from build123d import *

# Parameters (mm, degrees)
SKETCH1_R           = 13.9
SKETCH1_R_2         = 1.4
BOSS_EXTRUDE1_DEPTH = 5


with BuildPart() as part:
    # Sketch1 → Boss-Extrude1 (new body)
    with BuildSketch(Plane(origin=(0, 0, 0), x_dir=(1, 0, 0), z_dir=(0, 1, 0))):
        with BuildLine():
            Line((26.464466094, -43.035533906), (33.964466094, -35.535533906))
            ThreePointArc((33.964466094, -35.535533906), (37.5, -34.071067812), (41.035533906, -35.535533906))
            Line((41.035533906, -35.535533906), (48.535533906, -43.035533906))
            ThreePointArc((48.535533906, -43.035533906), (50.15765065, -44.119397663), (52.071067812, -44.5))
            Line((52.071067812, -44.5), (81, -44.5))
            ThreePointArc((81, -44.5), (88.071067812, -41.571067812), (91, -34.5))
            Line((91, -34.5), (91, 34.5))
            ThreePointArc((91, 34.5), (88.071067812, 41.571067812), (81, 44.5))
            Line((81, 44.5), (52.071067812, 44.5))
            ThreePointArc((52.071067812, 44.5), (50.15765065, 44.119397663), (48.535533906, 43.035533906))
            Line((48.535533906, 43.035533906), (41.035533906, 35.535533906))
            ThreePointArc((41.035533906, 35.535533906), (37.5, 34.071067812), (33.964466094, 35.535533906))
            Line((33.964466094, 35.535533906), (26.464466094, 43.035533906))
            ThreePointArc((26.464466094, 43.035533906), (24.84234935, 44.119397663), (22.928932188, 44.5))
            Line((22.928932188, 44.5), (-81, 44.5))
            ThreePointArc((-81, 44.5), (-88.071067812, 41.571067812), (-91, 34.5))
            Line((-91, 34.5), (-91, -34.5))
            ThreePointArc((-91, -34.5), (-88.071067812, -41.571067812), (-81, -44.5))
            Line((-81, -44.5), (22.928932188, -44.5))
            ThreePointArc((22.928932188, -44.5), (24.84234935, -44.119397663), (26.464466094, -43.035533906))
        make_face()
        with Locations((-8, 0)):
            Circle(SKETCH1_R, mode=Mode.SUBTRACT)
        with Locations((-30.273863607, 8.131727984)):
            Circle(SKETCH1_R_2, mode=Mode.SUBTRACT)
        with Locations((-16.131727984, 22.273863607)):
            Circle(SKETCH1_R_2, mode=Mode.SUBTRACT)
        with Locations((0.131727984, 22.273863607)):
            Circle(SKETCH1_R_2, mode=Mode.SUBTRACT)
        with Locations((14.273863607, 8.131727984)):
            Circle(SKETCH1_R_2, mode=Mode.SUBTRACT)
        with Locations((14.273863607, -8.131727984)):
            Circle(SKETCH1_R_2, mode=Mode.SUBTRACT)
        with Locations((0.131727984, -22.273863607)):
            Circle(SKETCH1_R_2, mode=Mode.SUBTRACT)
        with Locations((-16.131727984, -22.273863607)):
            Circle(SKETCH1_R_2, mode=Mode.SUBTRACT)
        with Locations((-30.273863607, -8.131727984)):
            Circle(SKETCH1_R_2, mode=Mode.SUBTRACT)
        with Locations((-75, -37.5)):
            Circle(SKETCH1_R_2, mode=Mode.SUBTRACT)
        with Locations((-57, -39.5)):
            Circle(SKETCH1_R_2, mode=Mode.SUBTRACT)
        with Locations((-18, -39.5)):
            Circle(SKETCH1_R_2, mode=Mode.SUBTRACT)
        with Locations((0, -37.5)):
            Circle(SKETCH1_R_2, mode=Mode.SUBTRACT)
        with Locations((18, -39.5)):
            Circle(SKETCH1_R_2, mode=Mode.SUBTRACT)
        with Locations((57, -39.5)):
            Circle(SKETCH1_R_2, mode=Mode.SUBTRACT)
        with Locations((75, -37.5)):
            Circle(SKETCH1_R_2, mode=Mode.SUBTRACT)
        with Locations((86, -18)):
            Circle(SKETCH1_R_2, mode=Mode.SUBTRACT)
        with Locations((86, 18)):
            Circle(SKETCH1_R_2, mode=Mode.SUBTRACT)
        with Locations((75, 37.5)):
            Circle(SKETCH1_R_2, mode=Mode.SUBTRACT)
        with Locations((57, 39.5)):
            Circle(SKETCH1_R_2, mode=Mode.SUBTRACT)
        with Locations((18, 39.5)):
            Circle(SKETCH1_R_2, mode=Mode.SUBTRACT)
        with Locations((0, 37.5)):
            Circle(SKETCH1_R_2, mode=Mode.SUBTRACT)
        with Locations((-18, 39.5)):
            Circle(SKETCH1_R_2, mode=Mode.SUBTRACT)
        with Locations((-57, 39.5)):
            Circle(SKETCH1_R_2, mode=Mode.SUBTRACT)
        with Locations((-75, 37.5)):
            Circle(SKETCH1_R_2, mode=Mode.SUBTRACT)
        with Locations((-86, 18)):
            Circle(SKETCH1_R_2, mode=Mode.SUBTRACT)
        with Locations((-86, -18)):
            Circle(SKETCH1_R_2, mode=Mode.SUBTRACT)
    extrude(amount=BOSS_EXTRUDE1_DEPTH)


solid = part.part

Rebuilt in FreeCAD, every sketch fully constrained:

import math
import FreeCAD as App
import Part
import Sketcher
Q = App.Units.Quantity

doc = App.newDocument("Part")
body = doc.addObject("PartDesign::Body", "Body")

# Sketch on XZ plane
sketch1 = body.newObject("Sketcher::SketchObject", "Sketch")
sketch1.AttachmentSupport = (doc.getObject("XZ_Plane"), [""])
sketch1.MapMode = "FlatFace"
sketch1.addGeometry([
    Part.LineSegment(App.Vector(26.5, 43, 0), App.Vector(34, 35.5, 0)),  # 0
    Part.ArcOfCircle(Part.Circle(App.Vector(37.5, 39.1, 0), App.Vector(0, 0, 1), 5), math.radians(-135), math.radians(-45)),  # 1
    Part.LineSegment(App.Vector(41, 35.5, 0), App.Vector(48.5, 43, 0)),  # 2
    Part.ArcOfCircle(Part.Circle(App.Vector(52.1, 39.5, 0), App.Vector(0, 0, 1), 5), math.radians(90), math.radians(135)),  # 3
    Part.LineSegment(App.Vector(52.1, 44.5, 0), App.Vector(81, 44.5, 0)),  # 4
    Part.ArcOfCircle(Part.Circle(App.Vector(81, 34.5, 0), App.Vector(0, 0, 1), 10), math.radians(0), math.radians(90)),  # 5
    Part.LineSegment(App.Vector(91, 34.5, 0), App.Vector(91, -34.5, 0)),  # 6
    Part.ArcOfCircle(Part.Circle(App.Vector(81, -34.5, 0), App.Vector(0, 0, 1), 10), math.radians(-90), math.radians(0)),  # 7
    Part.LineSegment(App.Vector(81, -44.5, 0), App.Vector(52.1, -44.5, 0)),  # 8
    Part.ArcOfCircle(Part.Circle(App.Vector(52.1, -39.5, 0), App.Vector(0, 0, 1), 5), math.radians(-135), math.radians(-90)),  # 9
    Part.LineSegment(App.Vector(48.5, -43, 0), App.Vector(41, -35.5, 0)),  # 10
    Part.ArcOfCircle(Part.Circle(App.Vector(37.5, -39.1, 0), App.Vector(0, 0, 1), 5), math.radians(45), math.radians(135)),  # 11
    Part.LineSegment(App.Vector(34, -35.5, 0), App.Vector(26.5, -43, 0)),  # 12
    Part.ArcOfCircle(Part.Circle(App.Vector(22.9, -39.5, 0), App.Vector(0, 0, 1), 5), math.radians(-90), math.radians(-45)),  # 13
    Part.LineSegment(App.Vector(22.9, -44.5, 0), App.Vector(-81, -44.5, 0)),  # 14
    Part.ArcOfCircle(Part.Circle(App.Vector(-81, -34.5, 0), App.Vector(0, 0, 1), 10), math.radians(180), math.radians(270)),  # 15
    Part.LineSegment(App.Vector(-91, -34.5, 0), App.Vector(-91, 34.5, 0)),  # 16
    Part.ArcOfCircle(Part.Circle(App.Vector(-81, 34.5, 0), App.Vector(0, 0, 1), 10), math.radians(90), math.radians(180)),  # 17
    Part.LineSegment(App.Vector(-81, 44.5, 0), App.Vector(22.9, 44.5, 0)),  # 18
    Part.ArcOfCircle(Part.Circle(App.Vector(22.9, 39.5, 0), App.Vector(0, 0, 1), 5), math.radians(45), math.radians(90)),  # 19
    Part.Circle(App.Vector(-75, 37.5, 0), App.Vector(0, 0, 1), 1.4),  # 20
    Part.Circle(App.Vector(-57, 39.5, 0), App.Vector(0, 0, 1), 1.4),  # 21
    Part.Circle(App.Vector(-18, 39.5, 0), App.Vector(0, 0, 1), 1.4),  # 22
    Part.Circle(App.Vector(-16.1, 22.3, 0), App.Vector(0, 0, 1), 1.4),  # 23
    Part.Circle(App.Vector(-86, 18, 0), App.Vector(0, 0, 1), 1.4),  # 24
    Part.Circle(App.Vector(-30.3, 8.1, 0), App.Vector(0, 0, 1), 1.4),  # 25
    Part.Circle(App.Vector(0, 37.5, 0), App.Vector(0, 0, 1), 1.4),  # 26
    Part.Circle(App.Vector(18, 39.5, 0), App.Vector(0, 0, 1), 1.4),  # 27
    Part.Circle(App.Vector(0.1, 22.3, 0), App.Vector(0, 0, 1), 1.4),  # 28
    Part.Circle(App.Vector(57, 39.5, 0), App.Vector(0, 0, 1), 1.4),  # 29
    Part.Circle(App.Vector(75, 37.5, 0), App.Vector(0, 0, 1), 1.4),  # 30
    Part.Circle(App.Vector(14.3, 8.1, 0), App.Vector(0, 0, 1), 1.4),  # 31
    Part.Circle(App.Vector(86, 18, 0), App.Vector(0, 0, 1), 1.4),  # 32
    Part.Circle(App.Vector(-86, -18, 0), App.Vector(0, 0, 1), 1.4),  # 33
    Part.Circle(App.Vector(-30.3, -8.1, 0), App.Vector(0, 0, 1), 1.4),  # 34
    Part.Circle(App.Vector(-8, 0, 0), App.Vector(0, 0, 1), 13.9),  # 35
    Part.Circle(App.Vector(-75, -37.5, 0), App.Vector(0, 0, 1), 1.4),  # 36
    Part.Circle(App.Vector(-57, -39.5, 0), App.Vector(0, 0, 1), 1.4),  # 37
    Part.Circle(App.Vector(-16.1, -22.3, 0), App.Vector(0, 0, 1), 1.4),  # 38
    Part.Circle(App.Vector(-18, -39.5, 0), App.Vector(0, 0, 1), 1.4),  # 39
    Part.Circle(App.Vector(14.3, -8.1, 0), App.Vector(0, 0, 1), 1.4),  # 40
    Part.Circle(App.Vector(86, -18, 0), App.Vector(0, 0, 1), 1.4),  # 41
    Part.Circle(App.Vector(0.1, -22.3, 0), App.Vector(0, 0, 1), 1.4),  # 42
    Part.Circle(App.Vector(0, -37.5, 0), App.Vector(0, 0, 1), 1.4),  # 43
    Part.Circle(App.Vector(18, -39.5, 0), App.Vector(0, 0, 1), 1.4),  # 44
    Part.Circle(App.Vector(57, -39.5, 0), App.Vector(0, 0, 1), 1.4),  # 45
    Part.Circle(App.Vector(75, -37.5, 0), App.Vector(0, 0, 1), 1.4),  # 46
], False)
sketch1.addConstraint([
    Sketcher.Constraint("Tangent", 0, 2, 1, 1),
    Sketcher.Constraint("Tangent", 1, 2, 2, 1),
    Sketcher.Constraint("Tangent", 2, 2, 3, 2),
    Sketcher.Constraint("Tangent", 3, 1, 4, 1),
    Sketcher.Constraint("Tangent", 4, 2, 5, 2),
    Sketcher.Constraint("Tangent", 5, 1, 6, 1),
    Sketcher.Constraint("Tangent", 6, 2, 7, 2),
    Sketcher.Constraint("Tangent", 7, 1, 8, 1),
    Sketcher.Constraint("Tangent", 8, 2, 9, 2),
    Sketcher.Constraint("Tangent", 9, 1, 10, 1),
    Sketcher.Constraint("Tangent", 10, 2, 11, 1),
    Sketcher.Constraint("Tangent", 11, 2, 12, 1),
    Sketcher.Constraint("Tangent", 12, 2, 13, 2),
    Sketcher.Constraint("Tangent", 13, 1, 14, 1),
    Sketcher.Constraint("Tangent", 14, 2, 15, 2),
    Sketcher.Constraint("Tangent", 15, 1, 16, 1),
    Sketcher.Constraint("Tangent", 16, 2, 17, 2),
    Sketcher.Constraint("Tangent", 17, 1, 18, 1),
    Sketcher.Constraint("Tangent", 18, 2, 19, 2),
    Sketcher.Constraint("Tangent", 19, 1, 0, 1),
    Sketcher.Constraint("Horizontal", 4),
    Sketcher.Constraint("Vertical", 6),
    Sketcher.Constraint("Horizontal", 8),
    Sketcher.Constraint("Horizontal", 14),
    Sketcher.Constraint("Vertical", 16),
    Sketcher.Constraint("Horizontal", 18),
    Sketcher.Constraint("Equal", 1, 3),
    Sketcher.Constraint("Equal", 5, 7),
    Sketcher.Constraint("Equal", 3, 9),
    Sketcher.Constraint("Equal", 9, 11),
    Sketcher.Constraint("Equal", 11, 13),
    Sketcher.Constraint("Equal", 7, 15),
    Sketcher.Constraint("Equal", 15, 17),
    Sketcher.Constraint("Equal", 13, 19),
    Sketcher.Constraint("Equal", 20, 21),
    Sketcher.Constraint("Equal", 21, 22),
    Sketcher.Constraint("Equal", 22, 23),
    Sketcher.Constraint("Equal", 23, 24),
    Sketcher.Constraint("Equal", 24, 25),
    Sketcher.Constraint("Equal", 25, 26),
    Sketcher.Constraint("Equal", 26, 27),
    Sketcher.Constraint("Equal", 27, 28),
    Sketcher.Constraint("Equal", 28, 29),
    Sketcher.Constraint("Equal", 29, 30),
    Sketcher.Constraint("Equal", 30, 31),
    Sketcher.Constraint("Equal", 31, 32),
    Sketcher.Constraint("Equal", 32, 33),
    Sketcher.Constraint("Equal", 33, 34),
    Sketcher.Constraint("Equal", 34, 36),
    Sketcher.Constraint("Equal", 36, 37),
    Sketcher.Constraint("Equal", 37, 38),
    Sketcher.Constraint("Equal", 38, 39),
    Sketcher.Constraint("Equal", 39, 40),
    Sketcher.Constraint("Equal", 40, 41),
    Sketcher.Constraint("Equal", 41, 42),
    Sketcher.Constraint("Equal", 42, 43),
    Sketcher.Constraint("Equal", 43, 44),
    Sketcher.Constraint("Equal", 44, 45),
    Sketcher.Constraint("Equal", 45, 46),
    Sketcher.Constraint("Symmetric", 5, 3, 15, 3, -1, 1),
    Sketcher.Constraint("Symmetric", 32, 3, 33, 3, -1, 1),
    Sketcher.Constraint("Symmetric", 30, 3, 36, 3, -1, 1),
    Sketcher.Constraint("Symmetric", 29, 3, 37, 3, -1, 1),
    Sketcher.Constraint("Symmetric", 27, 3, 39, 3, -1, 1),
    Sketcher.Constraint("Symmetric", 24, 3, 41, 3, -1, 1),
    Sketcher.Constraint("Symmetric", 26, 3, 43, 3, -1, 1),
    Sketcher.Constraint("Symmetric", 22, 3, 44, 3, -1, 1),
    Sketcher.Constraint("Symmetric", 21, 3, 45, 3, -1, 1),
    Sketcher.Constraint("Symmetric", 20, 3, 46, 3, -1, 1),
    Sketcher.Constraint("Symmetric", 22, 3, 27, 3, -2),
    Sketcher.Constraint("Symmetric", 21, 3, 29, 3, -2),
    Sketcher.Constraint("Symmetric", 20, 3, 30, 3, -2),
    Sketcher.Constraint("Symmetric", 24, 3, 32, 3, -2),
    Sketcher.Constraint("Symmetric", 3, 3, 9, 3, -1),
    Sketcher.Constraint("Symmetric", 1, 3, 11, 3, -1),
    Sketcher.Constraint("Symmetric", 13, 3, 19, 3, -1),
    Sketcher.Constraint("Symmetric", 25, 3, 34, 3, -1),
    Sketcher.Constraint("Symmetric", 23, 3, 38, 3, -1),
    Sketcher.Constraint("Symmetric", 31, 3, 40, 3, -1),
    Sketcher.Constraint("Symmetric", 28, 3, 42, 3, -1),
    Sketcher.Constraint("PointOnObject", 26, 3, -2),
    Sketcher.Constraint("PointOnObject", 35, 3, -1),
    Sketcher.Constraint("Perpendicular", 0, 2),
    Sketcher.Constraint("Perpendicular", 2, 10),
    Sketcher.Constraint("Horizontal", 19, 3, 21, 3),
    Sketcher.Constraint("Horizontal", 21, 3, 22, 3),
    Sketcher.Constraint("Horizontal", 20, 3, 26, 3),
    Sketcher.Constraint("Horizontal", 23, 3, 28, 3),
    Sketcher.Constraint("Horizontal", 25, 3, 31, 3),
    Sketcher.Constraint("Radius", 1, Q("5 mm")),
    Sketcher.Constraint("Radius", 5, Q("10 mm")),
    Sketcher.Constraint("Diameter", 20, Q("2.8 mm")),
    Sketcher.Constraint("Diameter", 35, Q("27.8 mm")),
    Sketcher.Constraint("DistanceY", 6, 2, 6, 1, Q("69 mm")),
    Sketcher.Constraint("DistanceX", -1, 1, 5, 3, Q("81 mm")),
    Sketcher.Constraint("DistanceX", 20, 3, -1, 1, Q("75 mm")),
    Sketcher.Constraint("DistanceX", 21, 3, -1, 1, Q("57 mm")),
    Sketcher.Constraint("DistanceX", 22, 3, -1, 1, Q("18 mm")),
    Sketcher.Constraint("DistanceX", 24, 3, -1, 1, Q("86 mm")),
    Sketcher.Constraint("DistanceY", -1, 1, 24, 3, Q("18 mm")),
    Sketcher.Constraint("DistanceX", 35, 3, -1, 1, Q("8 mm")),
    Sketcher.Constraint("DistanceY", 17, 3, 20, 3, Q("3 mm")),
    Sketcher.Constraint("DistanceX", -1, 1, 1, 3, Q("37.5 mm")),
    Sketcher.Constraint("DistanceX", 1, 2, 2, 2, Q("7.5 mm")),
    Sketcher.Constraint("DistanceX", 23, 3, 19, 3, Q("39.06066 mm")),
    Sketcher.Constraint("DistanceX", 31, 3, 19, 3, Q("8.655069 mm")),
    Sketcher.Constraint("DistanceY", 34, 3, 23, 3, Q("30.405592 mm")),
    Sketcher.Constraint("DistanceX", 34, 3, 28, 3, Q("30.405592 mm")),
    Sketcher.Constraint("DistanceY", -1, 1, 23, 3, Q("22.273864 mm")),
    Sketcher.Constraint("DistanceX", 25, 3, -1, 1, Q("30.273864 mm")),
])
pad1 = body.newObject("PartDesign::Pad", "Pad")
pad1.Profile = sketch1
pad1.Length = 5
pad1.Reversed = True

doc.recompute()
